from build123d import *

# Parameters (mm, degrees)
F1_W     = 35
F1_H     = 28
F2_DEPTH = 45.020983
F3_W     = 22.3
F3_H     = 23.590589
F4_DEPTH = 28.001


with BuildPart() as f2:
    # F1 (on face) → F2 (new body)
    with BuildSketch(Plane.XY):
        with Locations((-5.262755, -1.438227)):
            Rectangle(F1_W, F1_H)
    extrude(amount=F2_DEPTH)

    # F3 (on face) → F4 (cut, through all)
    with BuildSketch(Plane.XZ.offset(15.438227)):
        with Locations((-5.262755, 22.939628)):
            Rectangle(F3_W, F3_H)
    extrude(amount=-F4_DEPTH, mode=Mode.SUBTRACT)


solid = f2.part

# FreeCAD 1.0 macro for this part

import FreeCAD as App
import Part
import Sketcher

V = App.Vector


def add_polygon(sketch, points):
    """Adds a closed chain of lines whose ends are joined by coincident constraints."""
    first, n = sketch.GeometryCount, len(points)
    for a, b in zip(points, points[1:] + points[:1]):
        sketch.addGeometry(Part.LineSegment(App.Vector(*a, 0), App.Vector(*b, 0)), False)
    for i in range(n):
        sketch.addConstraint(Sketcher.Constraint("Coincident", first + i, 2, first + (i + 1) % n, 1))

doc = App.newDocument("Part")
body = doc.addObject("PartDesign::Body", "Body")

sketch1 = doc.addObject("Sketcher::SketchObject", "Sketch")
body.addObject(sketch1)
sketch1.AttachmentSupport = (doc.XY_Plane, [""])
sketch1.MapMode = "FlatFace"
add_polygon(sketch1, [(-22.762755, 12.561773), (-22.762755, -15.438227), (12.237245, -15.438227), (12.237245, 12.561773)])
sketch1.addConstraint([
    Sketcher.Constraint("Vertical", 0),
    Sketcher.Constraint("Horizontal", 1),
    Sketcher.Constraint("Vertical", 2),
    Sketcher.Constraint("Horizontal", 3),
    Sketcher.Constraint("DistanceX", 1, 1, 1, 2, 35.0),
    Sketcher.Constraint("DistanceY", 0, 2, 0, 1, 28.0),
    Sketcher.Constraint("DistanceX", 0, 2, -1, 1, 22.762755),
    Sketcher.Constraint("DistanceY", 0, 2, -1, 1, 15.438227),
])
pad1 = doc.addObject("PartDesign::Pad", "Pad")
body.addObject(pad1)
pad1.Profile = sketch1
pad1.Length = 45.020983

sketch2 = doc.addObject("Sketcher::SketchObject", "Sketch001")
body.addObject(sketch2)
sketch2.AttachmentSupport = (doc.XZ_Plane, [""])
sketch2.MapMode = "FlatFace"
sketch2.AttachmentOffset = App.Placement(V(0, 0, 15.438227), App.Rotation())
add_polygon(sketch2, [(-16.412755, 34.734923), (-16.412755, 11.144334), (5.887245, 11.144334), (5.887245, 34.734923)])
sketch2.addConstraint([
    Sketcher.Constraint("Vertical", 0),
    Sketcher.Constraint("Horizontal", 1),
    Sketcher.Constraint("Vertical", 2),
    Sketcher.Constraint("Horizontal", 3),
    Sketcher.Constraint("DistanceX", 1, 1, 1, 2, 22.3),
    Sketcher.Constraint("DistanceY", 0, 2, 0, 1, 23.590589),
    Sketcher.Constraint("DistanceX", 0, 2, -1, 1, 16.412755),
    Sketcher.Constraint("DistanceY", -1, 1, 0, 2, 11.144334),
])
pocket1 = doc.addObject("PartDesign::Pocket", "Pocket")
body.addObject(pocket1)
pocket1.Profile = sketch2
pocket1.Type = "ThroughAll"

doc.recompute()
